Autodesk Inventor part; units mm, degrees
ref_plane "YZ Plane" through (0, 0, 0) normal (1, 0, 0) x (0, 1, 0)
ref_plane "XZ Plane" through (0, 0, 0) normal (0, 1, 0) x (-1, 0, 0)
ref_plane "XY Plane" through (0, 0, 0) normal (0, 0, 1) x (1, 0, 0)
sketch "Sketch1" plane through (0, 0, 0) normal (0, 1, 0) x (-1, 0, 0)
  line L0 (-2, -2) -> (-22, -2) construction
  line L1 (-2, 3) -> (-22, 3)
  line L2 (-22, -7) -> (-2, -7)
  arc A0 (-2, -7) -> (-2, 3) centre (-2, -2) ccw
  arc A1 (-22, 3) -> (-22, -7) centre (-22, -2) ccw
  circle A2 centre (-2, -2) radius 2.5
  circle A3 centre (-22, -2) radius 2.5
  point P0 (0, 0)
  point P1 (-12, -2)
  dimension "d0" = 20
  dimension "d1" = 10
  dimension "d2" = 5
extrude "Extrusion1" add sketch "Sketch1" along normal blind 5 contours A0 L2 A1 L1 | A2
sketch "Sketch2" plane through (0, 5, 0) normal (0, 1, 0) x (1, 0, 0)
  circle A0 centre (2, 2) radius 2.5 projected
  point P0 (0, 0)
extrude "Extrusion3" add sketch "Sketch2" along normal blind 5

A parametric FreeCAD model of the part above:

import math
import FreeCAD as App
import Part
import Sketcher

V = App.Vector

doc = App.newDocument("Part")
body = doc.addObject("PartDesign::Body", "Body")

sketch1 = body.newObject("Sketcher::SketchObject", "Sketch")
sketch1.AttachmentSupport = (doc.getObject("XZ_Plane"), [""])
sketch1.MapMode = "FlatFace"
sketch1.addGeometry(Part.ArcOfCircle(Part.Circle(V(2, -2, 0), V(0, 0, 1), 5), math.radians(90), math.radians(270)), False)
sketch1.addGeometry(Part.LineSegment(V(2, 3, 0), V(22, 3, 0)), False)
sketch1.addGeometry(Part.ArcOfCircle(Part.Circle(V(22, -2, 0), V(0, 0, 1), 5), math.radians(-90), math.radians(90)), False)
sketch1.addGeometry(Part.LineSegment(V(22, -7, 0), V(2, -7, 0)), False)
sketch1.addGeometry(Part.Circle(V(22, -2, 0), V(0, 0, 1), 2.5), False)
sketch1.addConstraint(Sketcher.Constraint("Tangent", 0, 1, 1, 1))
sketch1.addConstraint(Sketcher.Constraint("Tangent", 1, 2, 2, 2))
sketch1.addConstraint(Sketcher.Constraint("Tangent", 2, 1, 3, 1))
sketch1.addConstraint(Sketcher.Constraint("Tangent", 3, 2, 0, 2))
sketch1.addConstraint(Sketcher.Constraint("Horizontal", 1))
sketch1.addConstraint(Sketcher.Constraint("Horizontal", 3))
sketch1.addConstraint(Sketcher.Constraint("Coincident", 4, 3, 2, 3))
sketch1.addConstraint(Sketcher.Constraint("Diameter", 4, 5.0))
sketch1.addConstraint(Sketcher.Constraint("Radius", 0, 5.0))
sketch1.addConstraint(Sketcher.Constraint("DistanceX", 1, 1, 1, 2, 20.0))
sketch1.addConstraint(Sketcher.Constraint("DistanceX", -1, 1, 0, 3, 2.0))
sketch1.addConstraint(Sketcher.Constraint("DistanceY", 0, 3, -1, 1, 2.0))
pad1 = body.newObject("PartDesign::Pad", "Pad")
pad1.Profile = sketch1
pad1.Length = 5
pad1.Reversed = True

sketch2 = body.newObject("Sketcher::SketchObject", "Sketch001")
sketch2.AttachmentSupport = (doc.getObject("XZ_Plane"), [""])
sketch2.MapMode = "FlatFace"
sketch2.AttachmentOffset = App.Placement(V(0, 0, -5), App.Rotation())
sketch2.addGeometry(Part.Circle(V(2, -2, 0), V(0, 0, 1), 2.5), False)
sketch2.addConstraint(Sketcher.Constraint("Diameter", 0, 5.0))
sketch2.addConstraint(Sketcher.Constraint("DistanceX", -1, 1, 0, 3, 2.0))
sketch2.addConstraint(Sketcher.Constraint("DistanceY", 0, 3, -1, 1, 2.0))
pad2 = body.newObject("PartDesign::Pad", "Pad001")
pad2.Profile = sketch2
pad2.Length = 5
pad2.Reversed = True

doc.recompute()
